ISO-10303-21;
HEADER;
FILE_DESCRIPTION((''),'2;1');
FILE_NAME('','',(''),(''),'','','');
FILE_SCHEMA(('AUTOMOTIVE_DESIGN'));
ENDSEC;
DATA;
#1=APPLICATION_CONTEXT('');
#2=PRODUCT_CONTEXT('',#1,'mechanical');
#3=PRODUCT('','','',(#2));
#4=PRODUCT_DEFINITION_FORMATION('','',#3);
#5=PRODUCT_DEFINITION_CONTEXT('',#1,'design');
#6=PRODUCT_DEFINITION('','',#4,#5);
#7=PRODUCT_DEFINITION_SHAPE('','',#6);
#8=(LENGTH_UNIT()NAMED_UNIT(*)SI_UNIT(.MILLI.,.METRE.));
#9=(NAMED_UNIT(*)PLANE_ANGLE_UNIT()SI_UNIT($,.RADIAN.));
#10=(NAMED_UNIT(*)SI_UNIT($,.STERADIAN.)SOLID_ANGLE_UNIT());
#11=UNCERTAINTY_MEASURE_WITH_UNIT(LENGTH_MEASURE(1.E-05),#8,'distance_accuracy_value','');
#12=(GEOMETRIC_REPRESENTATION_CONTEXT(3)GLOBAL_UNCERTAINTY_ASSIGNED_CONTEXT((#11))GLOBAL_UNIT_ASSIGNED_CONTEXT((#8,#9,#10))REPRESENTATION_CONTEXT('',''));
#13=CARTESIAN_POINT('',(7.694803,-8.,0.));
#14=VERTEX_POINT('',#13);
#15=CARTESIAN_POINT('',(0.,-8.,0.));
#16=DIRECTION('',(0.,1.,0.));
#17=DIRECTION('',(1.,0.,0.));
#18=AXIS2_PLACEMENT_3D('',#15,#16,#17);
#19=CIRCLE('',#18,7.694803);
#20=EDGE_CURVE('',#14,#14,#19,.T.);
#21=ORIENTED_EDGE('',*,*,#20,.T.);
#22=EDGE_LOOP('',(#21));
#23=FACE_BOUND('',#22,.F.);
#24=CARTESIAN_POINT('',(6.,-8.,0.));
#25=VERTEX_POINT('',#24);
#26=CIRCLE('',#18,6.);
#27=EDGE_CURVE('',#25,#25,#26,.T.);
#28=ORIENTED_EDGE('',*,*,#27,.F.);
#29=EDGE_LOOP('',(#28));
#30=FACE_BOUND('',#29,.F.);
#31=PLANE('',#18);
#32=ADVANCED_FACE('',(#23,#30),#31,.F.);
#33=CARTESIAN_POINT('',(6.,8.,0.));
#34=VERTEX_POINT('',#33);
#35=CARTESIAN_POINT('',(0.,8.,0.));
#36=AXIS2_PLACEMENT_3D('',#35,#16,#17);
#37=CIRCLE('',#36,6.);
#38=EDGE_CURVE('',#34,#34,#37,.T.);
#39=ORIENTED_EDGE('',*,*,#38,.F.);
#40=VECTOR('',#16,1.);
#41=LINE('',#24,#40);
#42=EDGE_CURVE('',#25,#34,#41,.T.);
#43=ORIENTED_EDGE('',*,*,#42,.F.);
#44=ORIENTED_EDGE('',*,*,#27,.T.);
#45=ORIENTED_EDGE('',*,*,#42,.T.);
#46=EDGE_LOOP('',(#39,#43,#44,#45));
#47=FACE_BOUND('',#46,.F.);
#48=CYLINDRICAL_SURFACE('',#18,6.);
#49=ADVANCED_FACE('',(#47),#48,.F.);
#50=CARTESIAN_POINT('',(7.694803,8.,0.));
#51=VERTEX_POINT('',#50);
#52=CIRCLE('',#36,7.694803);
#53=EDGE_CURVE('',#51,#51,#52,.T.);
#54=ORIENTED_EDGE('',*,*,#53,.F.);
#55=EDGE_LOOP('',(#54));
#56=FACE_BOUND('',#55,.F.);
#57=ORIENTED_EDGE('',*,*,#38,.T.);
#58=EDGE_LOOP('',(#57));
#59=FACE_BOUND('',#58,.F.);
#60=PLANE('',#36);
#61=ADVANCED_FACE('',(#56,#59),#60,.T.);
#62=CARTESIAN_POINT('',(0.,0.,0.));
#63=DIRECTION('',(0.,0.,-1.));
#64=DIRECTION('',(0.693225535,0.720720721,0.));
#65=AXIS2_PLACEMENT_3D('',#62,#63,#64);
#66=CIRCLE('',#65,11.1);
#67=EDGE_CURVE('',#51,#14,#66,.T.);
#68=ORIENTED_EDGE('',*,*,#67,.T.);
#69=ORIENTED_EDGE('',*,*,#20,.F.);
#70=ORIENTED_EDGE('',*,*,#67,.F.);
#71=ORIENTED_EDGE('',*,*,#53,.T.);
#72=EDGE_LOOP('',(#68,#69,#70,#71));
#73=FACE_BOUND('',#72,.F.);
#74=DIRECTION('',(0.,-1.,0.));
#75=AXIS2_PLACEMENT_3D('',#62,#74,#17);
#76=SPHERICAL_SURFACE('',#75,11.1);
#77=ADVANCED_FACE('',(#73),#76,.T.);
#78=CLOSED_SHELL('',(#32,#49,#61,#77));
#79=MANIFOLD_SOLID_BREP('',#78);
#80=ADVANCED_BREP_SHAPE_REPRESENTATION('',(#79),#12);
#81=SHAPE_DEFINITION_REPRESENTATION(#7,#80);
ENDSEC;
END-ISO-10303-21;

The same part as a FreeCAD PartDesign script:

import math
import FreeCAD as App
import Part
import Sketcher

V = App.Vector
Q = App.Units.Quantity

doc = App.newDocument("Part")
body = doc.addObject("PartDesign::Body", "Body")

# Sketch on XY plane
sketch1 = body.newObject("Sketcher::SketchObject", "Sketch")
sketch1.AttachmentSupport = (doc.getObject("XY_Plane"), [""])
sketch1.MapMode = "FlatFace"
sketch1.addGeometry(Part.LineSegment(V(6, 8, 0), V(6, -8, 0)), False)
sketch1.addGeometry(Part.LineSegment(V(6, -8, 0), V(7.7, -8, 0)), False)
sketch1.addGeometry(Part.ArcOfCircle(Part.Circle(V(0, 0, 0), V(0, 0, 1), 11.1), math.radians(-46), math.radians(46)), False)
sketch1.addGeometry(Part.LineSegment(V(7.7, 8, 0), V(6, 8, 0)), False)
sketch1.addConstraint(Sketcher.Constraint("Coincident", 0, 2, 1, 1))
sketch1.addConstraint(Sketcher.Constraint("Coincident", 1, 2, 2, 1))
sketch1.addConstraint(Sketcher.Constraint("Coincident", 2, 2, 3, 1))
sketch1.addConstraint(Sketcher.Constraint("Coincident", 3, 2, 0, 1))
sketch1.addConstraint(Sketcher.Constraint("Vertical", 0))
sketch1.addConstraint(Sketcher.Constraint("Horizontal", 1))
sketch1.addConstraint(Sketcher.Constraint("Horizontal", 3))
sketch1.addConstraint(Sketcher.Constraint("Coincident", 2, 3, -1, 1))
sketch1.addConstraint(Sketcher.Constraint("Vertical", 1, 2, 2, 2))
sketch1.addConstraint(Sketcher.Constraint("Radius", 2, Q("11.1 mm")))
sketch1.addConstraint(Sketcher.Constraint("DistanceY", 0, 2, 0, 1, Q("16 mm")))
sketch1.addConstraint(Sketcher.Constraint("DistanceX", -1, 1, 0, 2, Q("6 mm")))
revolution = body.newObject("PartDesign::Revolution", "Revolution")
revolution.Profile = sketch1
revolution.ReferenceAxis = (sketch1, ["V_Axis"])
revolution.Angle = 360

doc.recompute()
